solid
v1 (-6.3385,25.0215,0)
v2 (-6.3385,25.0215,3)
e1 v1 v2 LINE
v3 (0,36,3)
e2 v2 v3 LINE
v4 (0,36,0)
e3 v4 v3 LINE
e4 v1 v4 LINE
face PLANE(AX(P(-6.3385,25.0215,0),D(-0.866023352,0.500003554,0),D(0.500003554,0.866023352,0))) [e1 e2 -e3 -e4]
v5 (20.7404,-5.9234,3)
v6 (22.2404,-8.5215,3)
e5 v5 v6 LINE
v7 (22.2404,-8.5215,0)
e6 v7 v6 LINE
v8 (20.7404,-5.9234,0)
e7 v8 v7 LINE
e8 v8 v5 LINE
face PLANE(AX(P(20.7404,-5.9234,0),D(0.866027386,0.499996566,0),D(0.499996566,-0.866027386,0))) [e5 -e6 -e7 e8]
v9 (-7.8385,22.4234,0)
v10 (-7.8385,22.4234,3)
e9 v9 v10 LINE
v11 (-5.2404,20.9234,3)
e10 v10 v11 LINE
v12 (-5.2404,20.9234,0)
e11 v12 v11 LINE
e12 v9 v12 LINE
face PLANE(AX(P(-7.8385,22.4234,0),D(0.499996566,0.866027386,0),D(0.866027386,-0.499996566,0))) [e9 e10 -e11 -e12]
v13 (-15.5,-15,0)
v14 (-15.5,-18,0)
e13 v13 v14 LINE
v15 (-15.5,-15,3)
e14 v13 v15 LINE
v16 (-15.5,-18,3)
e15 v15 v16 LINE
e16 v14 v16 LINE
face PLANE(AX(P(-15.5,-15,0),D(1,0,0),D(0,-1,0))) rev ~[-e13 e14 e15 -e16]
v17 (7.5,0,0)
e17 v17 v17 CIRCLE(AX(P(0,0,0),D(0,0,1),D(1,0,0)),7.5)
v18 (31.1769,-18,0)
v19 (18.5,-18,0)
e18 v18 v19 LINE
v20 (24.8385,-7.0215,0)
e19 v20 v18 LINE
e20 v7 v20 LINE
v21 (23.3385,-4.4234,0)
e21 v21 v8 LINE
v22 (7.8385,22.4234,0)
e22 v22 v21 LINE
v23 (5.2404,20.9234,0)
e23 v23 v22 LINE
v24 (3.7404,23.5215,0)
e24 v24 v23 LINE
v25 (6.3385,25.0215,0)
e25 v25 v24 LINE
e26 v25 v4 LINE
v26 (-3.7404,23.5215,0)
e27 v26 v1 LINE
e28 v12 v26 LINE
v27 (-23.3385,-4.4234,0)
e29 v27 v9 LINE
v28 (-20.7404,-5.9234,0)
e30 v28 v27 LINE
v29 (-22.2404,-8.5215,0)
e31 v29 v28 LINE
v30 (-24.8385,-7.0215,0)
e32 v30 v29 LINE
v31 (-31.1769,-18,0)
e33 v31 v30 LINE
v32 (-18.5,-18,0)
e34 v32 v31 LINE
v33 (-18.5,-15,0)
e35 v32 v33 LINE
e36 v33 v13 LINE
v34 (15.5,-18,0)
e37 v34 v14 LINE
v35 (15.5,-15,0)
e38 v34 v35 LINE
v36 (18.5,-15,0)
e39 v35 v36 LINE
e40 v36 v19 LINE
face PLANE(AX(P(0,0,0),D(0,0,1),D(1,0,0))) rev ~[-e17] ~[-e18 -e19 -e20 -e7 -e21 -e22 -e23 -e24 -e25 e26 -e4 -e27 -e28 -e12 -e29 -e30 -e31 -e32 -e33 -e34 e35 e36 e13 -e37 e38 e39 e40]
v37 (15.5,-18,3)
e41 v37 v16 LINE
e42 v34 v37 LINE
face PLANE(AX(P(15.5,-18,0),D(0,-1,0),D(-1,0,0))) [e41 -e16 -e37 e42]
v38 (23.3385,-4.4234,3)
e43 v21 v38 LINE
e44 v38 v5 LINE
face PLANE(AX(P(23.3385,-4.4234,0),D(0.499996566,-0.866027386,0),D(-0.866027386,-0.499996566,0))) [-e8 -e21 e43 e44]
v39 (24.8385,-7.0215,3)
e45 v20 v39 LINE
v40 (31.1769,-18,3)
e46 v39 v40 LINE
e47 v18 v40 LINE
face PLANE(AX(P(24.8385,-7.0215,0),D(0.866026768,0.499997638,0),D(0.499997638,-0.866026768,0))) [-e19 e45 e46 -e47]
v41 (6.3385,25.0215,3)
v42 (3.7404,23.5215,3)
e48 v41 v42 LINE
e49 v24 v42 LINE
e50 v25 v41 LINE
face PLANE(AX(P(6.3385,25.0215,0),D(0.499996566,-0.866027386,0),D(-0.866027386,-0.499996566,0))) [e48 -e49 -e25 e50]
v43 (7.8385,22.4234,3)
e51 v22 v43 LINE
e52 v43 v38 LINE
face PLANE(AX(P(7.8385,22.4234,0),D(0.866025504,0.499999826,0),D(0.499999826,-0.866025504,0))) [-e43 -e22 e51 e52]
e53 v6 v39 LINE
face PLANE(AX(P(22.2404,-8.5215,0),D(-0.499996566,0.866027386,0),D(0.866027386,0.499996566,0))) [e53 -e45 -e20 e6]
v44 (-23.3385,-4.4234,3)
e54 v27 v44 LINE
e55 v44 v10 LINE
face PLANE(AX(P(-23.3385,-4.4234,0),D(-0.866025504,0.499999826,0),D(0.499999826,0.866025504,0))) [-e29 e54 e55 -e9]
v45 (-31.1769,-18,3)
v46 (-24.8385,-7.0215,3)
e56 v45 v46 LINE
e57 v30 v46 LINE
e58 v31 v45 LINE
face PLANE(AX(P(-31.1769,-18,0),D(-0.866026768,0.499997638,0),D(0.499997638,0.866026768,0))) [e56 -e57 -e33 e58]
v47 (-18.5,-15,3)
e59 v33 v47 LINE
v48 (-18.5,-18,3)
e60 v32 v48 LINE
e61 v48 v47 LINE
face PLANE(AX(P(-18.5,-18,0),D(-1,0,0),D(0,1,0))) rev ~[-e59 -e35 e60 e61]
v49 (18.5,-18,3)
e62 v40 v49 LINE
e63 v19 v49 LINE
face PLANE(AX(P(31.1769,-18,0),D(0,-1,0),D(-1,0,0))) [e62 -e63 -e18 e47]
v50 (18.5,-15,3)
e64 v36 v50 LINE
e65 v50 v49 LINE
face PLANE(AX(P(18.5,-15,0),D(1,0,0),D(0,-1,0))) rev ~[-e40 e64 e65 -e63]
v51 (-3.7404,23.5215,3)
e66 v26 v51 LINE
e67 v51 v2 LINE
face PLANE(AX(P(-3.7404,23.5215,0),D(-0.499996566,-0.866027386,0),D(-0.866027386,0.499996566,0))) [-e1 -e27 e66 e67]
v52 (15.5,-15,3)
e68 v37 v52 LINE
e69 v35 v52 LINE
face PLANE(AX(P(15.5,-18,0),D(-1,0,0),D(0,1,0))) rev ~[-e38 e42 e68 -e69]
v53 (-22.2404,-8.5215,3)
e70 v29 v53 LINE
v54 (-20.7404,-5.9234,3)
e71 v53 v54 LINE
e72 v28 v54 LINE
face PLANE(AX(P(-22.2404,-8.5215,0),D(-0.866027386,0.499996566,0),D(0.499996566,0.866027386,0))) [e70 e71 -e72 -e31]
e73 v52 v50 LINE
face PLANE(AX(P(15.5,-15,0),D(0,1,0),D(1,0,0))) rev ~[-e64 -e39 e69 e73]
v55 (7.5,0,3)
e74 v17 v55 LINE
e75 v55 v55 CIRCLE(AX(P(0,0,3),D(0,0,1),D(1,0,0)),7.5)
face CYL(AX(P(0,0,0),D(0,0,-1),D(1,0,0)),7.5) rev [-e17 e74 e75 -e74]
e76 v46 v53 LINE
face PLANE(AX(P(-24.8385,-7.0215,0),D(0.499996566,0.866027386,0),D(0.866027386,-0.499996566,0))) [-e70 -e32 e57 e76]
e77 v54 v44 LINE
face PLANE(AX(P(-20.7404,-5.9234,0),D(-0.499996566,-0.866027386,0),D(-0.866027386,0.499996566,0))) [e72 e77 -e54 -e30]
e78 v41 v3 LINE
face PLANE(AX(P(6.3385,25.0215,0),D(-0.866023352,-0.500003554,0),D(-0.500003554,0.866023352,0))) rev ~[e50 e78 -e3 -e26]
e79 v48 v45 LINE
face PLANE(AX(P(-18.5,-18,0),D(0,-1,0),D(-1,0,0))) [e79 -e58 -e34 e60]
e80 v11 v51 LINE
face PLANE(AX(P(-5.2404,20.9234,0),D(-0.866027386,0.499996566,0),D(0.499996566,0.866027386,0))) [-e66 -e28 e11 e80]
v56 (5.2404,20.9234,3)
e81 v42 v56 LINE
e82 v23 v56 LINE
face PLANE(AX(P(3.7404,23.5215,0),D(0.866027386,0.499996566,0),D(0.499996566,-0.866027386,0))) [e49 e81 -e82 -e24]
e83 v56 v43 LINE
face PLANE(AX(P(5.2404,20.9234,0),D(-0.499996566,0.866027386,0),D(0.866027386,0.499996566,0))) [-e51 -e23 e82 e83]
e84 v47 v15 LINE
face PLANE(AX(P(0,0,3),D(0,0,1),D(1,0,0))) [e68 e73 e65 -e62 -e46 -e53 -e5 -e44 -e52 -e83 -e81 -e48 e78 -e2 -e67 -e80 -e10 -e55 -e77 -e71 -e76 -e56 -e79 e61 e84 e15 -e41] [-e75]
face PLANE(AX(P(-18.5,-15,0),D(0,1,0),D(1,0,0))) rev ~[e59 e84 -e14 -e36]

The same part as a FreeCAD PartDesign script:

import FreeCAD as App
import Part
import Sketcher

V = App.Vector
Q = App.Units.Quantity

doc = App.newDocument("Part")
body = doc.addObject("PartDesign::Body", "Body")

sketch1 = doc.addObject("Sketcher::SketchObject", "Sketch")
body.addObject(sketch1)
sketch1.AttachmentSupport = (doc.XY_Plane, [""])
sketch1.MapMode = "FlatFace"
sketch1.addGeometry([
    Part.LineSegment(V(-15.5, -18, 0), V(15.5, -18, 0)),
    Part.LineSegment(V(15.5, -18, 0), V(15.5, -15, 0)),
    Part.LineSegment(V(15.5, -15, 0), V(18.5, -15, 0)),
    Part.LineSegment(V(18.5, -15, 0), V(18.5, -18, 0)),
    Part.LineSegment(V(18.5, -18, 0), V(31.2, -18, 0)),
    Part.LineSegment(V(31.2, -18, 0), V(24.8, -7, 0)),
    Part.LineSegment(V(24.8, -7, 0), V(22.2, -8.5, 0)),
    Part.LineSegment(V(22.2, -8.5, 0), V(20.7, -5.9, 0)),
    Part.LineSegment(V(20.7, -5.9, 0), V(23.3, -4.4, 0)),
    Part.LineSegment(V(23.3, -4.4, 0), V(7.8, 22.4, 0)),
    Part.LineSegment(V(7.8, 22.4, 0), V(5.2, 20.9, 0)),
    Part.LineSegment(V(5.2, 20.9, 0), V(3.7, 23.5, 0)),
    Part.LineSegment(V(3.7, 23.5, 0), V(6.3, 25, 0)),
    Part.LineSegment(V(6.3, 25, 0), V(0, 36, 0)),
    Part.LineSegment(V(0, 36, 0), V(-6.3, 25, 0)),
    Part.LineSegment(V(-6.3, 25, 0), V(-3.7, 23.5, 0)),
    Part.LineSegment(V(-3.7, 23.5, 0), V(-5.2, 20.9, 0)),
    Part.LineSegment(V(-5.2, 20.9, 0), V(-7.8, 22.4, 0)),
    Part.LineSegment(V(-7.8, 22.4, 0), V(-23.3, -4.4, 0)),
    Part.LineSegment(V(-23.3, -4.4, 0), V(-20.7, -5.9, 0)),
    Part.LineSegment(V(-20.7, -5.9, 0), V(-22.2, -8.5, 0)),
    Part.LineSegment(V(-22.2, -8.5, 0), V(-24.8, -7, 0)),
    Part.LineSegment(V(-24.8, -7, 0), V(-31.2, -18, 0)),
    Part.LineSegment(V(-31.2, -18, 0), V(-18.5, -18, 0)),
    Part.LineSegment(V(-18.5, -18, 0), V(-18.5, -15, 0)),
    Part.LineSegment(V(-18.5, -15, 0), V(-15.5, -15, 0)),
    Part.LineSegment(V(-15.5, -15, 0), V(-15.5, -18, 0)),
    Part.Circle(V(0, 0, 0), V(0, 0, 1), 7.5),
], False)
sketch1.addConstraint([
    Sketcher.Constraint("Coincident", 0, 2, 1, 1),
    Sketcher.Constraint("Coincident", 1, 2, 2, 1),
    Sketcher.Constraint("Coincident", 2, 2, 3, 1),
    Sketcher.Constraint("Coincident", 3, 2, 4, 1),
    Sketcher.Constraint("Coincident", 4, 2, 5, 1),
    Sketcher.Constraint("Coincident", 5, 2, 6, 1),
    Sketcher.Constraint("Coincident", 6, 2, 7, 1),
    Sketcher.Constraint("Coincident", 7, 2, 8, 1),
    Sketcher.Constraint("Coincident", 8, 2, 9, 1),
    Sketcher.Constraint("Coincident", 9, 2, 10, 1),
    Sketcher.Constraint("Coincident", 10, 2, 11, 1),
    Sketcher.Constraint("Coincident", 11, 2, 12, 1),
    Sketcher.Constraint("Coincident", 12, 2, 13, 1),
    Sketcher.Constraint("Coincident", 13, 2, 14, 1),
    Sketcher.Constraint("Coincident", 14, 2, 15, 1),
    Sketcher.Constraint("Coincident", 15, 2, 16, 1),
    Sketcher.Constraint("Coincident", 16, 2, 17, 1),
    Sketcher.Constraint("Coincident", 17, 2, 18, 1),
    Sketcher.Constraint("Coincident", 18, 2, 19, 1),
    Sketcher.Constraint("Coincident", 19, 2, 20, 1),
    Sketcher.Constraint("Coincident", 20, 2, 21, 1),
    Sketcher.Constraint("Coincident", 21, 2, 22, 1),
    Sketcher.Constraint("Coincident", 22, 2, 23, 1),
    Sketcher.Constraint("Coincident", 23, 2, 24, 1),
    Sketcher.Constraint("Coincident", 24, 2, 25, 1),
    Sketcher.Constraint("Coincident", 25, 2, 26, 1),
    Sketcher.Constraint("Coincident", 26, 2, 0, 1),
    Sketcher.Constraint("Horizontal", 0),
    Sketcher.Constraint("Vertical", 1),
    Sketcher.Constraint("Horizontal", 2),
    Sketcher.Constraint("Vertical", 3),
    Sketcher.Constraint("Horizontal", 4),
    Sketcher.Constraint("Horizontal", 23),
    Sketcher.Constraint("Vertical", 24),
    Sketcher.Constraint("Horizontal", 25),
    Sketcher.Constraint("Vertical", 26),
    Sketcher.Constraint("Coincident", 27, 3, -1, 1),
    Sketcher.Constraint("Symmetric", 12, 2, 14, 2, -2),
    Sketcher.Constraint("Symmetric", 11, 2, 15, 2, -2),
    Sketcher.Constraint("Symmetric", 10, 2, 16, 2, -2),
    Sketcher.Constraint("Symmetric", 9, 2, 17, 2, -2),
    Sketcher.Constraint("Symmetric", 8, 2, 18, 2, -2),
    Sketcher.Constraint("Symmetric", 7, 2, 19, 2, -2),
    Sketcher.Constraint("Symmetric", 6, 2, 20, 2, -2),
    Sketcher.Constraint("Symmetric", 5, 2, 21, 2, -2),
    Sketcher.Constraint("Symmetric", 4, 2, 22, 2, -2),
    Sketcher.Constraint("Symmetric", 2, 2, 24, 2, -2),
    Sketcher.Constraint("PointOnObject", 13, 2, -2),
    Sketcher.Constraint("Perpendicular", 5, 6),
    Sketcher.Constraint("Perpendicular", 6, 7),
    Sketcher.Constraint("Perpendicular", 7, 8),
    Sketcher.Constraint("Perpendicular", 8, 9),
    Sketcher.Constraint("Perpendicular", 9, 10),
    Sketcher.Constraint("Perpendicular", 10, 11),
    Sketcher.Constraint("Perpendicular", 11, 12),
    Sketcher.Constraint("Perpendicular", 12, 13),
    Sketcher.Constraint("Horizontal", 0, 2, 3, 2),
    Sketcher.Constraint("Equal", 2, 25),
    Sketcher.Constraint("Equal", 25, 1),
    Sketcher.Constraint("Equal", 6, 7),
    Sketcher.Constraint("Equal", 7, 8),
    Sketcher.Constraint("Equal", 8, 10),
    Sketcher.Constraint("Equal", 10, 11),
    Sketcher.Constraint("Equal", 11, 12),
    Sketcher.Constraint("Equal", 5, 13),
    Sketcher.Constraint("Diameter", 27, Q("15 mm")),
    Sketcher.Constraint("DistanceX", 2, 1, 2, 2, Q("3 mm")),
    Sketcher.Constraint("Distance", 6, Q("3 mm")),
    Sketcher.Constraint("DistanceY", 0, 2, -1, 1, Q("18 mm")),
    Sketcher.Constraint("DistanceX", -1, 1, 2, 2, Q("18.5 mm")),
    Sketcher.Constraint("Angle", 5, Q("119.9998 deg")),
    Sketcher.Constraint("Distance", 9, Q("31 mm")),
    Sketcher.Constraint("DistanceY", -1, 1, 13, 2, Q("36 mm")),
])
pad1 = doc.addObject("PartDesign::Pad", "Pad")
body.addObject(pad1)
pad1.Profile = sketch1
pad1.Length = 3

doc.recompute()
